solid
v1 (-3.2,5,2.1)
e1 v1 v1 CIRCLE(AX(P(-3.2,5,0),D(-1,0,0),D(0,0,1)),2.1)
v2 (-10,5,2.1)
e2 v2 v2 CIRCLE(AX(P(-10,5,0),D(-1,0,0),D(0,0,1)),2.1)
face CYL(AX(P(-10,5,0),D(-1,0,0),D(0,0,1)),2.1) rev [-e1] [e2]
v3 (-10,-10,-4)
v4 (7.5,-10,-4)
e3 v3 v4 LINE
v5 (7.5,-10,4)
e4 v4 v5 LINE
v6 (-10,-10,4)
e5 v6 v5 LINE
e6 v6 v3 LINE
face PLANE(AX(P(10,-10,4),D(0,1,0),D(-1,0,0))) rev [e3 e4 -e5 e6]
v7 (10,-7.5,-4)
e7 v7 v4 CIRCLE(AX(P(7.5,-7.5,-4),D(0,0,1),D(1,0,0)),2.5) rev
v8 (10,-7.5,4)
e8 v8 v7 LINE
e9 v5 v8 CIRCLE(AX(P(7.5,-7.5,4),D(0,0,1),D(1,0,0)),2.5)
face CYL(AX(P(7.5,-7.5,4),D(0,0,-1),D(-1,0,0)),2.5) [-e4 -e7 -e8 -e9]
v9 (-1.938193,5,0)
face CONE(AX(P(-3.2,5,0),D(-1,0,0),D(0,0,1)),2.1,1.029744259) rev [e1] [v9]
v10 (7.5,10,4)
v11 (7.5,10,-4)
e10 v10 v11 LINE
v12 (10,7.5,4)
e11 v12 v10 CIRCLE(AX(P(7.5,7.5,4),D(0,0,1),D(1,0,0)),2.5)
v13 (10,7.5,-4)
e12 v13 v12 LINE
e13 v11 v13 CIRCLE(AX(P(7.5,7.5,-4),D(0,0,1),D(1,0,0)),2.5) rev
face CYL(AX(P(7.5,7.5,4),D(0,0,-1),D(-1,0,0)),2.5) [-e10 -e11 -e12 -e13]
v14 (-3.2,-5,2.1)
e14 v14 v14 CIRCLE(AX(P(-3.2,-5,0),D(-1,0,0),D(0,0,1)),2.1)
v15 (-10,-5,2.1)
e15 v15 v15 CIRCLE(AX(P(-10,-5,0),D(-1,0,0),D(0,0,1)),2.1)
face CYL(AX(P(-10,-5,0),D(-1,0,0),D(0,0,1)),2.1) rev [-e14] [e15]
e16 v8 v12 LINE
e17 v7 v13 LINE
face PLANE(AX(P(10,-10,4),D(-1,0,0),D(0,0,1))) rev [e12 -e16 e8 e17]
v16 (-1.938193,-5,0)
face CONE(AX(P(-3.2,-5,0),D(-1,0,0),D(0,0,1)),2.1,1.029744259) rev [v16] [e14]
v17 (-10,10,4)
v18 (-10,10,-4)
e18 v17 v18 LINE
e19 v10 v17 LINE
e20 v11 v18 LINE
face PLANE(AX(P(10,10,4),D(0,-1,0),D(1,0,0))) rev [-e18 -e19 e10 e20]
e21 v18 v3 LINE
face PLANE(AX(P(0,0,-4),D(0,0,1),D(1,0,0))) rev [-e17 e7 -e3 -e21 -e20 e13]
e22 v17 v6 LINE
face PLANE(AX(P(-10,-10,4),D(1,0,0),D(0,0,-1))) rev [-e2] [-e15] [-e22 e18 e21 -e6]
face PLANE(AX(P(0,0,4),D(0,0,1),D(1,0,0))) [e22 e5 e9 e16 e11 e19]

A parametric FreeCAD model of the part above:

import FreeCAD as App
import Part
import Sketcher

V = App.Vector
Q = App.Units.Quantity


def edges_at(feature, points):
    """Names of the edges that pass closest to the given points."""
    edges = feature.Shape.Edges
    near = lambda p: min(range(len(edges)), key=lambda i: edges[i].distToShape(Part.Vertex(*p))[0])
    return sorted({f"Edge{near(p) + 1}" for p in points})

doc = App.newDocument("Part")
body = doc.addObject("PartDesign::Body", "Body")

# Sketch on XY plane
sketch1 = doc.addObject("Sketcher::SketchObject", "Sketch")
body.addObject(sketch1)
sketch1.AttachmentSupport = (doc.XY_Plane, [""])
sketch1.MapMode = "FlatFace"
sketch1.addGeometry(Part.LineSegment(V(-10, 10, 0), V(-10, -10, 0)), False)
sketch1.addGeometry(Part.LineSegment(V(-10, -10, 0), V(10, -10, 0)), False)
sketch1.addGeometry(Part.LineSegment(V(10, -10, 0), V(10, 10, 0)), False)
sketch1.addGeometry(Part.LineSegment(V(10, 10, 0), V(-10, 10, 0)), False)
sketch1.addConstraint(Sketcher.Constraint("Coincident", 0, 2, 1, 1))
sketch1.addConstraint(Sketcher.Constraint("Coincident", 1, 2, 2, 1))
sketch1.addConstraint(Sketcher.Constraint("Coincident", 2, 2, 3, 1))
sketch1.addConstraint(Sketcher.Constraint("Coincident", 3, 2, 0, 1))
sketch1.addConstraint(Sketcher.Constraint("Vertical", 0))
sketch1.addConstraint(Sketcher.Constraint("Horizontal", 1))
sketch1.addConstraint(Sketcher.Constraint("Vertical", 2))
sketch1.addConstraint(Sketcher.Constraint("Horizontal", 3))
sketch1.addConstraint(Sketcher.Constraint("Symmetric", 0, 2, 2, 2, -1, 1))
sketch1.addConstraint(Sketcher.Constraint("Equal", 3, 0))
sketch1.addConstraint(Sketcher.Constraint("DistanceX", 1, 1, 1, 2, Q("20 mm")))
pad1 = doc.addObject("PartDesign::Pad", "Pad")
body.addObject(pad1)
pad1.Profile = sketch1
pad1.Length = 8
pad1.Midplane = True
doc.recompute()

fillet = doc.addObject("PartDesign::Fillet", "Fillet")
body.addObject(fillet)
fillet.Base = (pad1, edges_at(pad1, [(10, 10, 0), (10, -10, 0)]))
fillet.Radius = 2.5

# Sketch on YZ plane
sketch2 = doc.addObject("Sketcher::SketchObject", "Sketch001")
body.addObject(sketch2)
sketch2.AttachmentSupport = (doc.YZ_Plane, [""])
sketch2.MapMode = "FlatFace"
sketch2.AttachmentOffset = App.Placement(V(0, 0, -10), App.Rotation())
sketch2.addGeometry(Part.Circle(V(5, 0, 0), V(0, 0, 1), 2.1), False)
sketch2.addGeometry(Part.Circle(V(-5, 0, 0), V(0, 0, 1), 2.1), False)
sketch2.addConstraint(Sketcher.Constraint("Equal", 0, 1))
sketch2.addConstraint(Sketcher.Constraint("Symmetric", 0, 3, 1, 3, -1, 1))
sketch2.addConstraint(Sketcher.Constraint("PointOnObject", 0, 3, -1))
sketch2.addConstraint(Sketcher.Constraint("Diameter", 0, Q("4.2 mm")))
sketch2.addConstraint(Sketcher.Constraint("DistanceX", -1, 1, 0, 3, Q("5 mm")))
doc.recompute()
hole = doc.addObject("PartDesign::Hole", "Hole")
body.addObject(hole)
hole.Profile = sketch2
hole.ThreadType = "None"
hole.Diameter = 4.2
hole.DepthType = "Dimension"
hole.Depth = 6.8
hole.DrillPoint = "Angled"
hole.DrillPointAngle = 118
hole.Reversed = True

doc.recompute()
